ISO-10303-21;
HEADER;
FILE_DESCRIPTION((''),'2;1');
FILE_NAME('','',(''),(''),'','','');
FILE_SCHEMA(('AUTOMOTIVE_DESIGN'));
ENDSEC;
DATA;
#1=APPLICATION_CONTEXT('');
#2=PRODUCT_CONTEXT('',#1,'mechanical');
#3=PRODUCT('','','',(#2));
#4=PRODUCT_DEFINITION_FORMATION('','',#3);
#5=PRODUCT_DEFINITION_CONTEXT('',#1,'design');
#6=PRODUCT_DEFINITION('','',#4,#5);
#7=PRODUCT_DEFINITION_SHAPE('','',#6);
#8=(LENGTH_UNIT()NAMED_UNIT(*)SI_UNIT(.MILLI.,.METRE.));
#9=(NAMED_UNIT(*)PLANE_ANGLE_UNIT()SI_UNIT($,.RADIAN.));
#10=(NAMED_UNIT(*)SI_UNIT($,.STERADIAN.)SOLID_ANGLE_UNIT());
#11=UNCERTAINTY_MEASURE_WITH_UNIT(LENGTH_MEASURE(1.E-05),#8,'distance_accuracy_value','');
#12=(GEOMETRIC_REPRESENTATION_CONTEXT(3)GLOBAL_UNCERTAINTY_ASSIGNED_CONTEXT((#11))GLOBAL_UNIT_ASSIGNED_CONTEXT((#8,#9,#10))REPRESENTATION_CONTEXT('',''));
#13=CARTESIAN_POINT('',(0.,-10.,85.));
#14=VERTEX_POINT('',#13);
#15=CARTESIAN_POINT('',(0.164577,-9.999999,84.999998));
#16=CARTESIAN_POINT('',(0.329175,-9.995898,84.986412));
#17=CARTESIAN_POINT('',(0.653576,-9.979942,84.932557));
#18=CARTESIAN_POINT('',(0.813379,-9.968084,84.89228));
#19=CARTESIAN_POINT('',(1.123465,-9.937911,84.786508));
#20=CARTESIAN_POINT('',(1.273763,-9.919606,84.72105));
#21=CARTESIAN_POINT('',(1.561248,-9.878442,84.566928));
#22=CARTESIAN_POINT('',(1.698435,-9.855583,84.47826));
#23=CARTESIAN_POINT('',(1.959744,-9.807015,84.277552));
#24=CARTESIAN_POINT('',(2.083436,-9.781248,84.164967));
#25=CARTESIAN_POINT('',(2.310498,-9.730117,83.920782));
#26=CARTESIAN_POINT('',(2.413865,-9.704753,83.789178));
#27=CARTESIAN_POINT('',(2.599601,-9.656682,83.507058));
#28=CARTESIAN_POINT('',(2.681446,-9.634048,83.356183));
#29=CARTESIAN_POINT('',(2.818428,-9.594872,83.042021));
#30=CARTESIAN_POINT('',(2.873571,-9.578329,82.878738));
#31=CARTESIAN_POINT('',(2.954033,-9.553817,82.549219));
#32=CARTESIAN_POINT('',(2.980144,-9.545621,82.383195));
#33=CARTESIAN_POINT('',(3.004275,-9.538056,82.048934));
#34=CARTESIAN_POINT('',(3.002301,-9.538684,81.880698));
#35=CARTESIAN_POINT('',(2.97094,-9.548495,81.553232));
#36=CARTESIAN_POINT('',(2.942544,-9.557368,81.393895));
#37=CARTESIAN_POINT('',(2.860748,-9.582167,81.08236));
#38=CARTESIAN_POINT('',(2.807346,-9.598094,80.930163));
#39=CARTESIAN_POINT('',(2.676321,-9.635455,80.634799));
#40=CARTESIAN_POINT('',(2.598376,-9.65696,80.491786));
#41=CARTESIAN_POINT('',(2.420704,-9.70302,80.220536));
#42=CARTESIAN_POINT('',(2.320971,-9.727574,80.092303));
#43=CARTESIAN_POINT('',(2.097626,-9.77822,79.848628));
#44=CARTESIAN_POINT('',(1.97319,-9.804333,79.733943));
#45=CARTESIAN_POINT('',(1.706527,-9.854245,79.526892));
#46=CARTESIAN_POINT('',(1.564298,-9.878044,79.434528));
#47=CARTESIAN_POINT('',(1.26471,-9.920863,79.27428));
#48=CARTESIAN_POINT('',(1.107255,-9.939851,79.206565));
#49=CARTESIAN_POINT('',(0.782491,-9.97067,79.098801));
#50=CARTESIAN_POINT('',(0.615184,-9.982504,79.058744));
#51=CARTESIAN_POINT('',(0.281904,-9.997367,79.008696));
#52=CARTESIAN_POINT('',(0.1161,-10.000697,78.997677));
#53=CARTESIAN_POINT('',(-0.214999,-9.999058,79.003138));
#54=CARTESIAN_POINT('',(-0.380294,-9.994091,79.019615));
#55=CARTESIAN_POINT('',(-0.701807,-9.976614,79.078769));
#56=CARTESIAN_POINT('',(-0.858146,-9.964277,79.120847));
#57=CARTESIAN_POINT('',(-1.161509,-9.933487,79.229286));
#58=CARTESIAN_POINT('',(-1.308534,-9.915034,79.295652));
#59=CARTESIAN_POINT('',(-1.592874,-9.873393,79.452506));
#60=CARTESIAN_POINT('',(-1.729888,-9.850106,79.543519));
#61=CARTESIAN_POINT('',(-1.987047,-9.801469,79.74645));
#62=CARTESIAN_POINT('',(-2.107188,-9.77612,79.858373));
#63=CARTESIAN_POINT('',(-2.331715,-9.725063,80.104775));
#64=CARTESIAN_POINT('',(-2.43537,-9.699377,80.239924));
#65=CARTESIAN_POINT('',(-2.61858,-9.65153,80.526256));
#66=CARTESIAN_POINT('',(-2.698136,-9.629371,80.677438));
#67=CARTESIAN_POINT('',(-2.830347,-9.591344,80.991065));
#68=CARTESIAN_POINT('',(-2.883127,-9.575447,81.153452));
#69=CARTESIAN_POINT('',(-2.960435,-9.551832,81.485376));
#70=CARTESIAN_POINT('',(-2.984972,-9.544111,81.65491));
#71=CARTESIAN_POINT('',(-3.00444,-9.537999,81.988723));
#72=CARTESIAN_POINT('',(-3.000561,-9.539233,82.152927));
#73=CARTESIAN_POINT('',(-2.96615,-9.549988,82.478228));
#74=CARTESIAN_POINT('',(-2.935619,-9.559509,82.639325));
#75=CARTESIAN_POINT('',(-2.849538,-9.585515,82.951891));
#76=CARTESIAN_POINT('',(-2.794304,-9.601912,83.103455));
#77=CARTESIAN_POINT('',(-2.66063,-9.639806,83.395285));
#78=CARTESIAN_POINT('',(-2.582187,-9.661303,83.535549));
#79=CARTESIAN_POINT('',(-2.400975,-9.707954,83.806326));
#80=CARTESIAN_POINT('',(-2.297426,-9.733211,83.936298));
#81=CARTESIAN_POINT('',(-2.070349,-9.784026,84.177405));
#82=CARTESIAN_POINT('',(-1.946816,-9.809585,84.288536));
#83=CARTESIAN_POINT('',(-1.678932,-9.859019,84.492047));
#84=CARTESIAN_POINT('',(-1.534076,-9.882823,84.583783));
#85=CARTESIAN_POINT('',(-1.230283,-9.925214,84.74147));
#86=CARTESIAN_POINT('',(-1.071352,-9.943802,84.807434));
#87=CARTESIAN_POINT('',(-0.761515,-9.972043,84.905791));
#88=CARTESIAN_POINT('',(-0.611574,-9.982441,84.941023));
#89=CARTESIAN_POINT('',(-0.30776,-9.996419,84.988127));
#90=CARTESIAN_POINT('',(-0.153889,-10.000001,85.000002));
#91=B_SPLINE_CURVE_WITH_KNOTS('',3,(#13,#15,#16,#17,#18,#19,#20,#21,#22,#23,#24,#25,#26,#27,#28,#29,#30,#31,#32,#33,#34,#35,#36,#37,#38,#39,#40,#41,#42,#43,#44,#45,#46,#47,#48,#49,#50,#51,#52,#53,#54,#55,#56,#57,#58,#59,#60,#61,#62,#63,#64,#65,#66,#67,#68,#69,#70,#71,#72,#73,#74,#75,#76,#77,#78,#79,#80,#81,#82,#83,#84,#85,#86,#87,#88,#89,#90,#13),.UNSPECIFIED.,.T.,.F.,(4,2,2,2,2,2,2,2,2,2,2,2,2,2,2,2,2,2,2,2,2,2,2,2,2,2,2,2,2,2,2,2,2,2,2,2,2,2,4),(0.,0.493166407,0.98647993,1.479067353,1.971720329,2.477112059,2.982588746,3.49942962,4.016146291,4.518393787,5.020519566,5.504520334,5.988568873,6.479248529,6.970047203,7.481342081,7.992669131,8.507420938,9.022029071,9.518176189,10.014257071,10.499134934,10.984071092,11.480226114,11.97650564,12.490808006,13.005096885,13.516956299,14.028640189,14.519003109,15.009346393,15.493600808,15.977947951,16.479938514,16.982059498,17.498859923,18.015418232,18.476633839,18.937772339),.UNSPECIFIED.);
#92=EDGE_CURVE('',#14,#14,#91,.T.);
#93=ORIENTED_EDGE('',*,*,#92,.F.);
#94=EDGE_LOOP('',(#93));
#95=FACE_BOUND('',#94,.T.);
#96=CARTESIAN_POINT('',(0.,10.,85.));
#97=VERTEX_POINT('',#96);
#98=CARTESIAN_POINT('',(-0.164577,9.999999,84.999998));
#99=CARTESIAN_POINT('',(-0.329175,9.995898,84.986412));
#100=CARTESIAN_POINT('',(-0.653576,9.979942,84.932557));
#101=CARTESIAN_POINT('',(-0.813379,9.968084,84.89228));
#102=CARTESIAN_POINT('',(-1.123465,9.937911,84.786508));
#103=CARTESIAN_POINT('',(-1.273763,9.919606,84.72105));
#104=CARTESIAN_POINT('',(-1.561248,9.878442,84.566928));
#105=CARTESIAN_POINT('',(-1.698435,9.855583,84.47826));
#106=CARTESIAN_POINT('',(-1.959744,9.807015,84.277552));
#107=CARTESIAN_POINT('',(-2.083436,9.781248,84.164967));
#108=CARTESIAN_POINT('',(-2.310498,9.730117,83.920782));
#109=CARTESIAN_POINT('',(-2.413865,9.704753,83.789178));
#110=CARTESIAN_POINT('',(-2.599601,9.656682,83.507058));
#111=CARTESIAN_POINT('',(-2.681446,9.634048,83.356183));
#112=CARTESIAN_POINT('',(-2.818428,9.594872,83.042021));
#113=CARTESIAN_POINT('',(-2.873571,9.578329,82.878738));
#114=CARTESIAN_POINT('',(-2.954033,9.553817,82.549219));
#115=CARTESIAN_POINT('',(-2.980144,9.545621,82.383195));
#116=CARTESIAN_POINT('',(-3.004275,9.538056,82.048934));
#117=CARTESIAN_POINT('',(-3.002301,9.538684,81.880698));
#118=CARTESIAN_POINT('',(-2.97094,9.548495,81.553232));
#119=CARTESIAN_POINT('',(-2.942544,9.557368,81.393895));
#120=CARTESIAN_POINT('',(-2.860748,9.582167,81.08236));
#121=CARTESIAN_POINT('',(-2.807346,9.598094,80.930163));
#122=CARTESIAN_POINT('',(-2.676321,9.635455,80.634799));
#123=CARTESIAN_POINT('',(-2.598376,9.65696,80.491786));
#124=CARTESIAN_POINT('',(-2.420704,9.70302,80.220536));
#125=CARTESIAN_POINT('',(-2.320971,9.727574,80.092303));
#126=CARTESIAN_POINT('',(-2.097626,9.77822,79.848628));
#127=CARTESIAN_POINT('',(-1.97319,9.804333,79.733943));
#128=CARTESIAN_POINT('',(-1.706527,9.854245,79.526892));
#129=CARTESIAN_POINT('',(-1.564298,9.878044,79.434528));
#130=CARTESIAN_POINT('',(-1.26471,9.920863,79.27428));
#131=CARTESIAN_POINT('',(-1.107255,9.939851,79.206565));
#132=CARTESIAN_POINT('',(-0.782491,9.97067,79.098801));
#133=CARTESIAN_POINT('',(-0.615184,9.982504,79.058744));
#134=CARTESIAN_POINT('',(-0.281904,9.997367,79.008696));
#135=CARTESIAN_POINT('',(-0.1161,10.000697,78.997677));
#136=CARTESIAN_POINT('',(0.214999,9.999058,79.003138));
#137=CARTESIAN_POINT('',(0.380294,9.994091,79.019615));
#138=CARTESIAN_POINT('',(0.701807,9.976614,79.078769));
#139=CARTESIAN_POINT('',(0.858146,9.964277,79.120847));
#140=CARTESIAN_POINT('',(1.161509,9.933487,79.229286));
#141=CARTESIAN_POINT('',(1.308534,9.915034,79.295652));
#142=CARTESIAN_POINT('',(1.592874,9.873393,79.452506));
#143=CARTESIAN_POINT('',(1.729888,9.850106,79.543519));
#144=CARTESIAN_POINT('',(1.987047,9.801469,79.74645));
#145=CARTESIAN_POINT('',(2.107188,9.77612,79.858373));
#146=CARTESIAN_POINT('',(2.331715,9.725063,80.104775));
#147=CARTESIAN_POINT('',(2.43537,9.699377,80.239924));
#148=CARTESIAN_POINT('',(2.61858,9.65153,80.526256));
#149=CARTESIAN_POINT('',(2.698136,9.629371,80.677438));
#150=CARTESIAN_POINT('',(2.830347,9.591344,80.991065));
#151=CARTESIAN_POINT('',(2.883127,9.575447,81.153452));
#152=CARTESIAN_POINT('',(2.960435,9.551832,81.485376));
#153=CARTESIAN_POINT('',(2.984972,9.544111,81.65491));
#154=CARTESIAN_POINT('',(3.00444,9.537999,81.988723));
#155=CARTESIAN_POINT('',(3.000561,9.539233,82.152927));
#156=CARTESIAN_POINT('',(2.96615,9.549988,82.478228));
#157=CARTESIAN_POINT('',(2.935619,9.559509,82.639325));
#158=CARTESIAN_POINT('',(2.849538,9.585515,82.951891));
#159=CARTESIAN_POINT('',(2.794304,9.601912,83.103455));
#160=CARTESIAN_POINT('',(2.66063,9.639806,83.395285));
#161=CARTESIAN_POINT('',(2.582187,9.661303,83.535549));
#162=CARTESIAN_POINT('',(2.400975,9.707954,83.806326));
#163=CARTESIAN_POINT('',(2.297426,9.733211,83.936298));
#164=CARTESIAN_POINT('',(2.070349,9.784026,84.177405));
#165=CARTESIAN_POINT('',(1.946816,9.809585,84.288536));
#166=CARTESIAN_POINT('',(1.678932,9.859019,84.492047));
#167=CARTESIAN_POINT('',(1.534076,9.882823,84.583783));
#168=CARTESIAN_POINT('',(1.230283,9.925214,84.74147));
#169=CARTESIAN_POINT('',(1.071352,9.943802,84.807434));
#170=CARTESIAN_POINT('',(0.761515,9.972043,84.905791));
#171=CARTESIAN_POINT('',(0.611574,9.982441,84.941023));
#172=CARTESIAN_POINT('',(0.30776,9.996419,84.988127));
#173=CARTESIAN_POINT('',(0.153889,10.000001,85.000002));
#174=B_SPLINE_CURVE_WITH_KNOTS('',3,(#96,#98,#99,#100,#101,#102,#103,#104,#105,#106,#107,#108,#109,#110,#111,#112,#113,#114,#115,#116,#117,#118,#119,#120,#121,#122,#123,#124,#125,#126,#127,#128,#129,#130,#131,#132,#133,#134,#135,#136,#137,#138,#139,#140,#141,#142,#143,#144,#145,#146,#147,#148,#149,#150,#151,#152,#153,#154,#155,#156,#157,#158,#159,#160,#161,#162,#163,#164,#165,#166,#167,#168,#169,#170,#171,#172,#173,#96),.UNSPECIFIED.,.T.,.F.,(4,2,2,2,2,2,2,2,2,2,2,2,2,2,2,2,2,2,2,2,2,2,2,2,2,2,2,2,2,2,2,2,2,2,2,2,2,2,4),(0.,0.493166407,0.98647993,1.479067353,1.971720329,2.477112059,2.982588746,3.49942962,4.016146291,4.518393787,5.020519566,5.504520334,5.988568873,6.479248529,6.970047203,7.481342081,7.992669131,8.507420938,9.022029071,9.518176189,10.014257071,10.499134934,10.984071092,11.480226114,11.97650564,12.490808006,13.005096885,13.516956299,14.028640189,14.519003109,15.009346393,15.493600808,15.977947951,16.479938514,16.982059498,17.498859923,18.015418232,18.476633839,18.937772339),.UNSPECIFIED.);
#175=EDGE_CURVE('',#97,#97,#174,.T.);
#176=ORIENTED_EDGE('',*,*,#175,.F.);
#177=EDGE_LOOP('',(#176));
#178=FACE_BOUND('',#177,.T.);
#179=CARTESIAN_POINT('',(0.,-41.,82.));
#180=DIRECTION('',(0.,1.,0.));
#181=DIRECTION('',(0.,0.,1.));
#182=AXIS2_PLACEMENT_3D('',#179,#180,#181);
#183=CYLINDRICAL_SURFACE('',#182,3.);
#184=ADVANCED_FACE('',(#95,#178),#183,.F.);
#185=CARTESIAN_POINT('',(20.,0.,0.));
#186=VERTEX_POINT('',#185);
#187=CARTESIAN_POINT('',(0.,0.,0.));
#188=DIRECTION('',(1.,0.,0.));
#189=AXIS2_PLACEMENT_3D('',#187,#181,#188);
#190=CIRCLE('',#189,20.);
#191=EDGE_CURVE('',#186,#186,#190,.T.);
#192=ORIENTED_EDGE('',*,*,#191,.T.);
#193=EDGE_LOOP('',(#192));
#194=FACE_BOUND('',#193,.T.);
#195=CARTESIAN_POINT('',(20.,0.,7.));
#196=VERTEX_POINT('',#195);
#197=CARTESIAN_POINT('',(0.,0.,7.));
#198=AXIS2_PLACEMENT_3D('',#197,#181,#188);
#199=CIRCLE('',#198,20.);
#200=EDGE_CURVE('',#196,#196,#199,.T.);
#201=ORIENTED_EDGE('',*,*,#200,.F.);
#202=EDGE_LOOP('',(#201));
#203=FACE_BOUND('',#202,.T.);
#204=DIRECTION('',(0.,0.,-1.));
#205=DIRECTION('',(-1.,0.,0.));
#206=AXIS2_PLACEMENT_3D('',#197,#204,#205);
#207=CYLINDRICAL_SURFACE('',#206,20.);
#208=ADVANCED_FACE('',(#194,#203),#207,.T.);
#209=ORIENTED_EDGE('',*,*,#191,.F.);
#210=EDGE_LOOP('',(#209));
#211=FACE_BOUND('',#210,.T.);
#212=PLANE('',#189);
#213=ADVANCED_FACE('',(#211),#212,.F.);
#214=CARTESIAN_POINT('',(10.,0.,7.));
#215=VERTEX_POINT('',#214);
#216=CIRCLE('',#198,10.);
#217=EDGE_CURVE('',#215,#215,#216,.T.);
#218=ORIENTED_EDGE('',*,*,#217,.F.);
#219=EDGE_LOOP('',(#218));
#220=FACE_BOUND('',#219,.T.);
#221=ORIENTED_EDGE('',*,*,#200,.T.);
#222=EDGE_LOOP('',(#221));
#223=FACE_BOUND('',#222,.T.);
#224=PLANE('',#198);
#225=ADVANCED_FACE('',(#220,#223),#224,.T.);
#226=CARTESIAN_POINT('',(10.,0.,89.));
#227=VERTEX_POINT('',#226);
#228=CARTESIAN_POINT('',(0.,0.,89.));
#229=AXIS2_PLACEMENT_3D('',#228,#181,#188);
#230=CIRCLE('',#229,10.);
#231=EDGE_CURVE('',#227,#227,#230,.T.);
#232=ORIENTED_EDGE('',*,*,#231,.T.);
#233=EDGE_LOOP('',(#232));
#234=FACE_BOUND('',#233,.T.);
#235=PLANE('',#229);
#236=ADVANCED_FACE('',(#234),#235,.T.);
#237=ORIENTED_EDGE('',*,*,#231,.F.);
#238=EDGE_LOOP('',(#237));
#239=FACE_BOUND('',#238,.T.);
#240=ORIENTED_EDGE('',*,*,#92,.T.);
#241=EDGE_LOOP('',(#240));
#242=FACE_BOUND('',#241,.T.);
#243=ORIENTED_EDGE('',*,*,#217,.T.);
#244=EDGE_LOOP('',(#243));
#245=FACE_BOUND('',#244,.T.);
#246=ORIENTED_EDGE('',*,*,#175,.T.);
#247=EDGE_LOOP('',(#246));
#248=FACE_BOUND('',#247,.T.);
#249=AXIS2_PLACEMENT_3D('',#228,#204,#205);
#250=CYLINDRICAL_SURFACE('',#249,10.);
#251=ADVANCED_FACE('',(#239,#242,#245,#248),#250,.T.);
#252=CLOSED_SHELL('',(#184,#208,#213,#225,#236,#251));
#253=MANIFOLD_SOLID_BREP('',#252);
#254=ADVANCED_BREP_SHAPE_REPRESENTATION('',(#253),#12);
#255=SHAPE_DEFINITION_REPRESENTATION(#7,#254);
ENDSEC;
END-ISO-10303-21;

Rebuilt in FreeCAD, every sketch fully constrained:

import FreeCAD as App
import Part
import Sketcher

V = App.Vector
Q = App.Units.Quantity

doc = App.newDocument("Part")
body = doc.addObject("PartDesign::Body", "Body")

sketch1 = body.newObject("Sketcher::SketchObject", "Sketch")
sketch1.AttachmentSupport = (doc.getObject("XY_Plane"), [""])
sketch1.MapMode = "FlatFace"
sketch1.addGeometry(Part.Circle(V(0, 0, 0), V(0, 0, 1), 20), False)
sketch1.addConstraint(Sketcher.Constraint("Coincident", 0, 3, -1, 1))
sketch1.addConstraint(Sketcher.Constraint("Diameter", 0, Q("40 mm")))
pad1 = body.newObject("PartDesign::Pad", "Pad")
pad1.Profile = sketch1
pad1.Length = 7

sketch2 = body.newObject("Sketcher::SketchObject", "Sketch001")
sketch2.AttachmentSupport = (doc.getObject("XY_Plane"), [""])
sketch2.MapMode = "FlatFace"
sketch2.AttachmentOffset = App.Placement(V(0, 0, 7), App.Rotation())
sketch2.addGeometry(Part.Circle(V(0, 0, 0), V(0, 0, 1), 10), False)
sketch2.addConstraint(Sketcher.Constraint("Coincident", 0, 3, -1, 1))
sketch2.addConstraint(Sketcher.Constraint("Diameter", 0, Q("20 mm")))
pad2 = body.newObject("PartDesign::Pad", "Pad001")
pad2.Profile = sketch2
pad2.Length = 82

sketch3 = body.newObject("Sketcher::SketchObject", "Sketch002")
sketch3.AttachmentSupport = (doc.getObject("XZ_Plane"), [""])
sketch3.MapMode = "FlatFace"
sketch3.addGeometry(Part.Circle(V(0, 82, 0), V(0, 0, 1), 3), False)
sketch3.addConstraint(Sketcher.Constraint("PointOnObject", 0, 3, -2))
sketch3.addConstraint(Sketcher.Constraint("Diameter", 0, Q("6 mm")))
sketch3.addConstraint(Sketcher.Constraint("DistanceY", -1, 1, 0, 3, Q("82 mm")))
pocket1 = body.newObject("PartDesign::Pocket", "Pocket")
pocket1.Profile = sketch3
pocket1.Length = 82
pocket1.Midplane = True

doc.recompute()
